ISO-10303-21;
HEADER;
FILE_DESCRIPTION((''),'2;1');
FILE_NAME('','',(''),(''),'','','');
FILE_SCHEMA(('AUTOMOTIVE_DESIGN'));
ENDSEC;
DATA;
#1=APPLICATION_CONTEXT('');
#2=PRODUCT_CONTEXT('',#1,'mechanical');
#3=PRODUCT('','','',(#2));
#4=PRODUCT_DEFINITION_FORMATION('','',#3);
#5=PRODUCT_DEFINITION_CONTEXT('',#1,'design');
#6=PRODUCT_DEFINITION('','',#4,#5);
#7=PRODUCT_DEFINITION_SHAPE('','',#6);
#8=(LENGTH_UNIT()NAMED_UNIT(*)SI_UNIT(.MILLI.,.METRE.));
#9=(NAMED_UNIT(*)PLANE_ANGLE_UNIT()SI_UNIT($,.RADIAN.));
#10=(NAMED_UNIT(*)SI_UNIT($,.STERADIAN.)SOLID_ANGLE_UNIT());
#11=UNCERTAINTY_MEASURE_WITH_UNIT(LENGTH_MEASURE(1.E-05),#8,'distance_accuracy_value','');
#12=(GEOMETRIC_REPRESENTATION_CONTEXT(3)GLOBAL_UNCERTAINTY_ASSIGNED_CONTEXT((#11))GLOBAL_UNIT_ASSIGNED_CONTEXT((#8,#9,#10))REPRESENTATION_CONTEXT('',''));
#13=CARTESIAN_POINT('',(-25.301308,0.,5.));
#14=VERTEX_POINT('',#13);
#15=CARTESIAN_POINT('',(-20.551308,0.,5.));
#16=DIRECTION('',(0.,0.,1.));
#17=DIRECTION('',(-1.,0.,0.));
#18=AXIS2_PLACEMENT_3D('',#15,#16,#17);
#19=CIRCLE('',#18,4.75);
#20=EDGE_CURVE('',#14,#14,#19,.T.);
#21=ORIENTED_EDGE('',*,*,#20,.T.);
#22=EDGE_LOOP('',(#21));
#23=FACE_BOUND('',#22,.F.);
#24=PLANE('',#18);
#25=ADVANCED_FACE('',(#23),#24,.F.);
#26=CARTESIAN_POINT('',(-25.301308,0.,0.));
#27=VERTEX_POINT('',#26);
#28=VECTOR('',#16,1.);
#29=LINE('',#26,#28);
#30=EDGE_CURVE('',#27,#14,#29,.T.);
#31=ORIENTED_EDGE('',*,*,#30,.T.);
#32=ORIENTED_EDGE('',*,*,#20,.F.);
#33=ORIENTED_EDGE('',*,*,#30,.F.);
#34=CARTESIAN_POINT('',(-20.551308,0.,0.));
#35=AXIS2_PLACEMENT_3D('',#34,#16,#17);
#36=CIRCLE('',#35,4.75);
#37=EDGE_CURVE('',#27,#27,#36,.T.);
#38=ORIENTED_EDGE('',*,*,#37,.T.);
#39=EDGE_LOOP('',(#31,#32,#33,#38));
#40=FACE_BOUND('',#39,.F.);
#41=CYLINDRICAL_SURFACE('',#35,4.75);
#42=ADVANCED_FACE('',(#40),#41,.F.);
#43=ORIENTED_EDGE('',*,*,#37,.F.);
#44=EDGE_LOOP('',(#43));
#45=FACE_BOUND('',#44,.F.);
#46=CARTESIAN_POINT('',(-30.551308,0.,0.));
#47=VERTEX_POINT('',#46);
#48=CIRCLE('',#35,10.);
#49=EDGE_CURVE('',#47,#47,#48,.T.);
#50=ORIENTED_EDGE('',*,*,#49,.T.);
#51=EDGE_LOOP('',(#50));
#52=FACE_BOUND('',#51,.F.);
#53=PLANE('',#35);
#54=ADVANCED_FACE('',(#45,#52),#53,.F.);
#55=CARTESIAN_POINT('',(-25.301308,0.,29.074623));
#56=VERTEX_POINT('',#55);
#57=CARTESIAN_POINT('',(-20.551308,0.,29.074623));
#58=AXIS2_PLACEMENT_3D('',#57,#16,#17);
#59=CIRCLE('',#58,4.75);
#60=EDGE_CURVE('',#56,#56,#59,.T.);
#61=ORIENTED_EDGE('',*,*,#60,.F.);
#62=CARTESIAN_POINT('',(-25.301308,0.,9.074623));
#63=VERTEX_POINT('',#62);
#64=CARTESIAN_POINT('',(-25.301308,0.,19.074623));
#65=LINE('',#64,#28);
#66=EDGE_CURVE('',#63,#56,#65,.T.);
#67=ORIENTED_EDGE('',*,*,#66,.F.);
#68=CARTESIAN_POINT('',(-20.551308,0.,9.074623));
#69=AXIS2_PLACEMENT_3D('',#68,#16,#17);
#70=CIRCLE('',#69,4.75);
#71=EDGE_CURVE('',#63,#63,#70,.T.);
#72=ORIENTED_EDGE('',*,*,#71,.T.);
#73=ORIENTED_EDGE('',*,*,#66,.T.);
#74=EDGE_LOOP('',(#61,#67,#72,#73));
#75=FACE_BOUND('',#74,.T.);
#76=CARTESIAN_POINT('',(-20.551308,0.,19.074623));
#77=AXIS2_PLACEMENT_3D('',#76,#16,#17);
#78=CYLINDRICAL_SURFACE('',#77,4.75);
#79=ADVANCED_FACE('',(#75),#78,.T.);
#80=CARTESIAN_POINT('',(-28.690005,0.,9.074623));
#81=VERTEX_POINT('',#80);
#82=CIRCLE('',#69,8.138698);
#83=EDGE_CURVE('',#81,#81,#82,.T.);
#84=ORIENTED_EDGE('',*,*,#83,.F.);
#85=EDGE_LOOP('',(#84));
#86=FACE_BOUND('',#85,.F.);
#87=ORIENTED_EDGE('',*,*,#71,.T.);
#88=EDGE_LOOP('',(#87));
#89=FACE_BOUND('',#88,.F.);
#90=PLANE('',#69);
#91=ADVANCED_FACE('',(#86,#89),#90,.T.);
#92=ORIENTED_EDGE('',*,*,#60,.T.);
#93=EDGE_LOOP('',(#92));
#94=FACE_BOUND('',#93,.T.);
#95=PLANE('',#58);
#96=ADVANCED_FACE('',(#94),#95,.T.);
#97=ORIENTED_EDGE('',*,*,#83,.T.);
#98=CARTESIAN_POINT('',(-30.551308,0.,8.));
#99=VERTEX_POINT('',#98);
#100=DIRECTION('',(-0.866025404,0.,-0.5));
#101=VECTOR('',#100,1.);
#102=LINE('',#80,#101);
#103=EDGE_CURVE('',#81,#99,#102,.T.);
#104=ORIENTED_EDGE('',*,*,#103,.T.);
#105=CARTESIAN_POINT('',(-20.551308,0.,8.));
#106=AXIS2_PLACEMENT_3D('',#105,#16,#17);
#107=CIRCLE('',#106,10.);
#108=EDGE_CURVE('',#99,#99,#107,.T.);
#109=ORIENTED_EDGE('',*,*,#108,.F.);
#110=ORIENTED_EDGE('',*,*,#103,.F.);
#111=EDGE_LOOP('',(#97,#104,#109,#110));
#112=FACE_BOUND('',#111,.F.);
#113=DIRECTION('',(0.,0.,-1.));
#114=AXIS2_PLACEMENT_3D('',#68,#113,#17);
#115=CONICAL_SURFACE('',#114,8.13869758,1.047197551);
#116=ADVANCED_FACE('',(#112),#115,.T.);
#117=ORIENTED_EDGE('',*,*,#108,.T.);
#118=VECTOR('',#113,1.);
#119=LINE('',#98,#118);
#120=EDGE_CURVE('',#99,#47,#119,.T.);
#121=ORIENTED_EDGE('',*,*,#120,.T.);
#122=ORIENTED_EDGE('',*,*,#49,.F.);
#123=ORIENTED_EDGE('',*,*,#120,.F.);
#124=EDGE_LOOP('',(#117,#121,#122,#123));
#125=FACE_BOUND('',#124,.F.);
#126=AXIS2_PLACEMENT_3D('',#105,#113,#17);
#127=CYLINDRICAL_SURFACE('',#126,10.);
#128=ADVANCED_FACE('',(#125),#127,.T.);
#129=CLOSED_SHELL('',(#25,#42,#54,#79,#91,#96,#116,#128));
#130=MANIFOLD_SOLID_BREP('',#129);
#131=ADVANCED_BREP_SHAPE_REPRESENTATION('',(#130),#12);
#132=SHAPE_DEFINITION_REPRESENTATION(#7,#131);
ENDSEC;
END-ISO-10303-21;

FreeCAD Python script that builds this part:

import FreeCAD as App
import Part
import Sketcher

V = App.Vector
Q = App.Units.Quantity

doc = App.newDocument("Part")
body = doc.addObject("PartDesign::Body", "Body")

# Sketch on XZ plane
sketch1 = doc.addObject("Sketcher::SketchObject", "Sketch")
body.addObject(sketch1)
sketch1.AttachmentSupport = (doc.XZ_Plane, [""])
sketch1.MapMode = "FlatFace"
sketch1.addGeometry([
    Part.LineSegment(V(-25.3, 29.1, 0), V(-25.3, 9.1, 0)),  # 0
    Part.LineSegment(V(-25.3, 9.1, 0), V(-28.7, 9.1, 0)),  # 1
    Part.LineSegment(V(-28.7, 9.1, 0), V(-30.6, 8, 0)),  # 2
    Part.LineSegment(V(-30.6, 8, 0), V(-30.6, 0, 0)),  # 3
    Part.LineSegment(V(-30.6, 0, 0), V(-25.3, 0, 0)),  # 4
    Part.LineSegment(V(-25.3, 0, 0), V(-25.3, 5, 0)),  # 5
    Part.LineSegment(V(-25.3, 5, 0), V(-20.6, 5, 0)),  # 6
    Part.LineSegment(V(-20.6, 5, 0), V(-20.6, 29.1, 0)),  # 7
    Part.LineSegment(V(-20.6, 29.1, 0), V(-25.3, 29.1, 0)),  # 8
], False)
sketch1.addGeometry(Part.LineSegment(V(-20.6, 0, 0), V(-20.6, 29.1, 0)), True)  # axis
sketch1.addConstraint([
    Sketcher.Constraint("Coincident", 0, 2, 1, 1),
    Sketcher.Constraint("Coincident", 1, 2, 2, 1),
    Sketcher.Constraint("Coincident", 2, 2, 3, 1),
    Sketcher.Constraint("Coincident", 3, 2, 4, 1),
    Sketcher.Constraint("Coincident", 4, 2, 5, 1),
    Sketcher.Constraint("Coincident", 5, 2, 6, 1),
    Sketcher.Constraint("Coincident", 6, 2, 7, 1),
    Sketcher.Constraint("Coincident", 7, 2, 8, 1),
    Sketcher.Constraint("Coincident", 8, 2, 0, 1),
    Sketcher.Constraint("Vertical", 0),
    Sketcher.Constraint("Horizontal", 1),
    Sketcher.Constraint("Vertical", 3),
    Sketcher.Constraint("Horizontal", 4),
    Sketcher.Constraint("Vertical", 5),
    Sketcher.Constraint("Horizontal", 6),
    Sketcher.Constraint("Vertical", 7),
    Sketcher.Constraint("Horizontal", 8),
    Sketcher.Constraint("Vertical", 9),
    Sketcher.Constraint("Coincident", 9, 2, 7, 2),
    Sketcher.Constraint("PointOnObject", 3, 2, -1),
    Sketcher.Constraint("PointOnObject", 9, 1, -1),
    Sketcher.Constraint("Vertical", 0, 2, 4, 2),
    Sketcher.Constraint("DistanceY", 0, 2, 0, 1, Q("20 mm")),
    Sketcher.Constraint("DistanceY", 3, 2, 3, 1, Q("8 mm")),
    Sketcher.Constraint("DistanceY", 5, 1, 5, 2, Q("5 mm")),
    Sketcher.Constraint("Angle", 2, Q("-150 deg")),
    Sketcher.Constraint("DistanceX", 2, 2, 6, 2, Q("10 mm")),
    Sketcher.Constraint("DistanceX", 4, 1, 4, 2, Q("5.25 mm")),
    Sketcher.Constraint("DistanceX", 1, 2, 1, 1, Q("3.388698 mm")),
    Sketcher.Constraint("DistanceX", 0, 2, -1, 1, Q("25.301308 mm")),
])
revolution = doc.addObject("PartDesign::Revolution", "Revolution")
body.addObject(revolution)
revolution.Profile = sketch1
revolution.ReferenceAxis = (sketch1, ["Axis0"])
revolution.Angle = 360

doc.recompute()
